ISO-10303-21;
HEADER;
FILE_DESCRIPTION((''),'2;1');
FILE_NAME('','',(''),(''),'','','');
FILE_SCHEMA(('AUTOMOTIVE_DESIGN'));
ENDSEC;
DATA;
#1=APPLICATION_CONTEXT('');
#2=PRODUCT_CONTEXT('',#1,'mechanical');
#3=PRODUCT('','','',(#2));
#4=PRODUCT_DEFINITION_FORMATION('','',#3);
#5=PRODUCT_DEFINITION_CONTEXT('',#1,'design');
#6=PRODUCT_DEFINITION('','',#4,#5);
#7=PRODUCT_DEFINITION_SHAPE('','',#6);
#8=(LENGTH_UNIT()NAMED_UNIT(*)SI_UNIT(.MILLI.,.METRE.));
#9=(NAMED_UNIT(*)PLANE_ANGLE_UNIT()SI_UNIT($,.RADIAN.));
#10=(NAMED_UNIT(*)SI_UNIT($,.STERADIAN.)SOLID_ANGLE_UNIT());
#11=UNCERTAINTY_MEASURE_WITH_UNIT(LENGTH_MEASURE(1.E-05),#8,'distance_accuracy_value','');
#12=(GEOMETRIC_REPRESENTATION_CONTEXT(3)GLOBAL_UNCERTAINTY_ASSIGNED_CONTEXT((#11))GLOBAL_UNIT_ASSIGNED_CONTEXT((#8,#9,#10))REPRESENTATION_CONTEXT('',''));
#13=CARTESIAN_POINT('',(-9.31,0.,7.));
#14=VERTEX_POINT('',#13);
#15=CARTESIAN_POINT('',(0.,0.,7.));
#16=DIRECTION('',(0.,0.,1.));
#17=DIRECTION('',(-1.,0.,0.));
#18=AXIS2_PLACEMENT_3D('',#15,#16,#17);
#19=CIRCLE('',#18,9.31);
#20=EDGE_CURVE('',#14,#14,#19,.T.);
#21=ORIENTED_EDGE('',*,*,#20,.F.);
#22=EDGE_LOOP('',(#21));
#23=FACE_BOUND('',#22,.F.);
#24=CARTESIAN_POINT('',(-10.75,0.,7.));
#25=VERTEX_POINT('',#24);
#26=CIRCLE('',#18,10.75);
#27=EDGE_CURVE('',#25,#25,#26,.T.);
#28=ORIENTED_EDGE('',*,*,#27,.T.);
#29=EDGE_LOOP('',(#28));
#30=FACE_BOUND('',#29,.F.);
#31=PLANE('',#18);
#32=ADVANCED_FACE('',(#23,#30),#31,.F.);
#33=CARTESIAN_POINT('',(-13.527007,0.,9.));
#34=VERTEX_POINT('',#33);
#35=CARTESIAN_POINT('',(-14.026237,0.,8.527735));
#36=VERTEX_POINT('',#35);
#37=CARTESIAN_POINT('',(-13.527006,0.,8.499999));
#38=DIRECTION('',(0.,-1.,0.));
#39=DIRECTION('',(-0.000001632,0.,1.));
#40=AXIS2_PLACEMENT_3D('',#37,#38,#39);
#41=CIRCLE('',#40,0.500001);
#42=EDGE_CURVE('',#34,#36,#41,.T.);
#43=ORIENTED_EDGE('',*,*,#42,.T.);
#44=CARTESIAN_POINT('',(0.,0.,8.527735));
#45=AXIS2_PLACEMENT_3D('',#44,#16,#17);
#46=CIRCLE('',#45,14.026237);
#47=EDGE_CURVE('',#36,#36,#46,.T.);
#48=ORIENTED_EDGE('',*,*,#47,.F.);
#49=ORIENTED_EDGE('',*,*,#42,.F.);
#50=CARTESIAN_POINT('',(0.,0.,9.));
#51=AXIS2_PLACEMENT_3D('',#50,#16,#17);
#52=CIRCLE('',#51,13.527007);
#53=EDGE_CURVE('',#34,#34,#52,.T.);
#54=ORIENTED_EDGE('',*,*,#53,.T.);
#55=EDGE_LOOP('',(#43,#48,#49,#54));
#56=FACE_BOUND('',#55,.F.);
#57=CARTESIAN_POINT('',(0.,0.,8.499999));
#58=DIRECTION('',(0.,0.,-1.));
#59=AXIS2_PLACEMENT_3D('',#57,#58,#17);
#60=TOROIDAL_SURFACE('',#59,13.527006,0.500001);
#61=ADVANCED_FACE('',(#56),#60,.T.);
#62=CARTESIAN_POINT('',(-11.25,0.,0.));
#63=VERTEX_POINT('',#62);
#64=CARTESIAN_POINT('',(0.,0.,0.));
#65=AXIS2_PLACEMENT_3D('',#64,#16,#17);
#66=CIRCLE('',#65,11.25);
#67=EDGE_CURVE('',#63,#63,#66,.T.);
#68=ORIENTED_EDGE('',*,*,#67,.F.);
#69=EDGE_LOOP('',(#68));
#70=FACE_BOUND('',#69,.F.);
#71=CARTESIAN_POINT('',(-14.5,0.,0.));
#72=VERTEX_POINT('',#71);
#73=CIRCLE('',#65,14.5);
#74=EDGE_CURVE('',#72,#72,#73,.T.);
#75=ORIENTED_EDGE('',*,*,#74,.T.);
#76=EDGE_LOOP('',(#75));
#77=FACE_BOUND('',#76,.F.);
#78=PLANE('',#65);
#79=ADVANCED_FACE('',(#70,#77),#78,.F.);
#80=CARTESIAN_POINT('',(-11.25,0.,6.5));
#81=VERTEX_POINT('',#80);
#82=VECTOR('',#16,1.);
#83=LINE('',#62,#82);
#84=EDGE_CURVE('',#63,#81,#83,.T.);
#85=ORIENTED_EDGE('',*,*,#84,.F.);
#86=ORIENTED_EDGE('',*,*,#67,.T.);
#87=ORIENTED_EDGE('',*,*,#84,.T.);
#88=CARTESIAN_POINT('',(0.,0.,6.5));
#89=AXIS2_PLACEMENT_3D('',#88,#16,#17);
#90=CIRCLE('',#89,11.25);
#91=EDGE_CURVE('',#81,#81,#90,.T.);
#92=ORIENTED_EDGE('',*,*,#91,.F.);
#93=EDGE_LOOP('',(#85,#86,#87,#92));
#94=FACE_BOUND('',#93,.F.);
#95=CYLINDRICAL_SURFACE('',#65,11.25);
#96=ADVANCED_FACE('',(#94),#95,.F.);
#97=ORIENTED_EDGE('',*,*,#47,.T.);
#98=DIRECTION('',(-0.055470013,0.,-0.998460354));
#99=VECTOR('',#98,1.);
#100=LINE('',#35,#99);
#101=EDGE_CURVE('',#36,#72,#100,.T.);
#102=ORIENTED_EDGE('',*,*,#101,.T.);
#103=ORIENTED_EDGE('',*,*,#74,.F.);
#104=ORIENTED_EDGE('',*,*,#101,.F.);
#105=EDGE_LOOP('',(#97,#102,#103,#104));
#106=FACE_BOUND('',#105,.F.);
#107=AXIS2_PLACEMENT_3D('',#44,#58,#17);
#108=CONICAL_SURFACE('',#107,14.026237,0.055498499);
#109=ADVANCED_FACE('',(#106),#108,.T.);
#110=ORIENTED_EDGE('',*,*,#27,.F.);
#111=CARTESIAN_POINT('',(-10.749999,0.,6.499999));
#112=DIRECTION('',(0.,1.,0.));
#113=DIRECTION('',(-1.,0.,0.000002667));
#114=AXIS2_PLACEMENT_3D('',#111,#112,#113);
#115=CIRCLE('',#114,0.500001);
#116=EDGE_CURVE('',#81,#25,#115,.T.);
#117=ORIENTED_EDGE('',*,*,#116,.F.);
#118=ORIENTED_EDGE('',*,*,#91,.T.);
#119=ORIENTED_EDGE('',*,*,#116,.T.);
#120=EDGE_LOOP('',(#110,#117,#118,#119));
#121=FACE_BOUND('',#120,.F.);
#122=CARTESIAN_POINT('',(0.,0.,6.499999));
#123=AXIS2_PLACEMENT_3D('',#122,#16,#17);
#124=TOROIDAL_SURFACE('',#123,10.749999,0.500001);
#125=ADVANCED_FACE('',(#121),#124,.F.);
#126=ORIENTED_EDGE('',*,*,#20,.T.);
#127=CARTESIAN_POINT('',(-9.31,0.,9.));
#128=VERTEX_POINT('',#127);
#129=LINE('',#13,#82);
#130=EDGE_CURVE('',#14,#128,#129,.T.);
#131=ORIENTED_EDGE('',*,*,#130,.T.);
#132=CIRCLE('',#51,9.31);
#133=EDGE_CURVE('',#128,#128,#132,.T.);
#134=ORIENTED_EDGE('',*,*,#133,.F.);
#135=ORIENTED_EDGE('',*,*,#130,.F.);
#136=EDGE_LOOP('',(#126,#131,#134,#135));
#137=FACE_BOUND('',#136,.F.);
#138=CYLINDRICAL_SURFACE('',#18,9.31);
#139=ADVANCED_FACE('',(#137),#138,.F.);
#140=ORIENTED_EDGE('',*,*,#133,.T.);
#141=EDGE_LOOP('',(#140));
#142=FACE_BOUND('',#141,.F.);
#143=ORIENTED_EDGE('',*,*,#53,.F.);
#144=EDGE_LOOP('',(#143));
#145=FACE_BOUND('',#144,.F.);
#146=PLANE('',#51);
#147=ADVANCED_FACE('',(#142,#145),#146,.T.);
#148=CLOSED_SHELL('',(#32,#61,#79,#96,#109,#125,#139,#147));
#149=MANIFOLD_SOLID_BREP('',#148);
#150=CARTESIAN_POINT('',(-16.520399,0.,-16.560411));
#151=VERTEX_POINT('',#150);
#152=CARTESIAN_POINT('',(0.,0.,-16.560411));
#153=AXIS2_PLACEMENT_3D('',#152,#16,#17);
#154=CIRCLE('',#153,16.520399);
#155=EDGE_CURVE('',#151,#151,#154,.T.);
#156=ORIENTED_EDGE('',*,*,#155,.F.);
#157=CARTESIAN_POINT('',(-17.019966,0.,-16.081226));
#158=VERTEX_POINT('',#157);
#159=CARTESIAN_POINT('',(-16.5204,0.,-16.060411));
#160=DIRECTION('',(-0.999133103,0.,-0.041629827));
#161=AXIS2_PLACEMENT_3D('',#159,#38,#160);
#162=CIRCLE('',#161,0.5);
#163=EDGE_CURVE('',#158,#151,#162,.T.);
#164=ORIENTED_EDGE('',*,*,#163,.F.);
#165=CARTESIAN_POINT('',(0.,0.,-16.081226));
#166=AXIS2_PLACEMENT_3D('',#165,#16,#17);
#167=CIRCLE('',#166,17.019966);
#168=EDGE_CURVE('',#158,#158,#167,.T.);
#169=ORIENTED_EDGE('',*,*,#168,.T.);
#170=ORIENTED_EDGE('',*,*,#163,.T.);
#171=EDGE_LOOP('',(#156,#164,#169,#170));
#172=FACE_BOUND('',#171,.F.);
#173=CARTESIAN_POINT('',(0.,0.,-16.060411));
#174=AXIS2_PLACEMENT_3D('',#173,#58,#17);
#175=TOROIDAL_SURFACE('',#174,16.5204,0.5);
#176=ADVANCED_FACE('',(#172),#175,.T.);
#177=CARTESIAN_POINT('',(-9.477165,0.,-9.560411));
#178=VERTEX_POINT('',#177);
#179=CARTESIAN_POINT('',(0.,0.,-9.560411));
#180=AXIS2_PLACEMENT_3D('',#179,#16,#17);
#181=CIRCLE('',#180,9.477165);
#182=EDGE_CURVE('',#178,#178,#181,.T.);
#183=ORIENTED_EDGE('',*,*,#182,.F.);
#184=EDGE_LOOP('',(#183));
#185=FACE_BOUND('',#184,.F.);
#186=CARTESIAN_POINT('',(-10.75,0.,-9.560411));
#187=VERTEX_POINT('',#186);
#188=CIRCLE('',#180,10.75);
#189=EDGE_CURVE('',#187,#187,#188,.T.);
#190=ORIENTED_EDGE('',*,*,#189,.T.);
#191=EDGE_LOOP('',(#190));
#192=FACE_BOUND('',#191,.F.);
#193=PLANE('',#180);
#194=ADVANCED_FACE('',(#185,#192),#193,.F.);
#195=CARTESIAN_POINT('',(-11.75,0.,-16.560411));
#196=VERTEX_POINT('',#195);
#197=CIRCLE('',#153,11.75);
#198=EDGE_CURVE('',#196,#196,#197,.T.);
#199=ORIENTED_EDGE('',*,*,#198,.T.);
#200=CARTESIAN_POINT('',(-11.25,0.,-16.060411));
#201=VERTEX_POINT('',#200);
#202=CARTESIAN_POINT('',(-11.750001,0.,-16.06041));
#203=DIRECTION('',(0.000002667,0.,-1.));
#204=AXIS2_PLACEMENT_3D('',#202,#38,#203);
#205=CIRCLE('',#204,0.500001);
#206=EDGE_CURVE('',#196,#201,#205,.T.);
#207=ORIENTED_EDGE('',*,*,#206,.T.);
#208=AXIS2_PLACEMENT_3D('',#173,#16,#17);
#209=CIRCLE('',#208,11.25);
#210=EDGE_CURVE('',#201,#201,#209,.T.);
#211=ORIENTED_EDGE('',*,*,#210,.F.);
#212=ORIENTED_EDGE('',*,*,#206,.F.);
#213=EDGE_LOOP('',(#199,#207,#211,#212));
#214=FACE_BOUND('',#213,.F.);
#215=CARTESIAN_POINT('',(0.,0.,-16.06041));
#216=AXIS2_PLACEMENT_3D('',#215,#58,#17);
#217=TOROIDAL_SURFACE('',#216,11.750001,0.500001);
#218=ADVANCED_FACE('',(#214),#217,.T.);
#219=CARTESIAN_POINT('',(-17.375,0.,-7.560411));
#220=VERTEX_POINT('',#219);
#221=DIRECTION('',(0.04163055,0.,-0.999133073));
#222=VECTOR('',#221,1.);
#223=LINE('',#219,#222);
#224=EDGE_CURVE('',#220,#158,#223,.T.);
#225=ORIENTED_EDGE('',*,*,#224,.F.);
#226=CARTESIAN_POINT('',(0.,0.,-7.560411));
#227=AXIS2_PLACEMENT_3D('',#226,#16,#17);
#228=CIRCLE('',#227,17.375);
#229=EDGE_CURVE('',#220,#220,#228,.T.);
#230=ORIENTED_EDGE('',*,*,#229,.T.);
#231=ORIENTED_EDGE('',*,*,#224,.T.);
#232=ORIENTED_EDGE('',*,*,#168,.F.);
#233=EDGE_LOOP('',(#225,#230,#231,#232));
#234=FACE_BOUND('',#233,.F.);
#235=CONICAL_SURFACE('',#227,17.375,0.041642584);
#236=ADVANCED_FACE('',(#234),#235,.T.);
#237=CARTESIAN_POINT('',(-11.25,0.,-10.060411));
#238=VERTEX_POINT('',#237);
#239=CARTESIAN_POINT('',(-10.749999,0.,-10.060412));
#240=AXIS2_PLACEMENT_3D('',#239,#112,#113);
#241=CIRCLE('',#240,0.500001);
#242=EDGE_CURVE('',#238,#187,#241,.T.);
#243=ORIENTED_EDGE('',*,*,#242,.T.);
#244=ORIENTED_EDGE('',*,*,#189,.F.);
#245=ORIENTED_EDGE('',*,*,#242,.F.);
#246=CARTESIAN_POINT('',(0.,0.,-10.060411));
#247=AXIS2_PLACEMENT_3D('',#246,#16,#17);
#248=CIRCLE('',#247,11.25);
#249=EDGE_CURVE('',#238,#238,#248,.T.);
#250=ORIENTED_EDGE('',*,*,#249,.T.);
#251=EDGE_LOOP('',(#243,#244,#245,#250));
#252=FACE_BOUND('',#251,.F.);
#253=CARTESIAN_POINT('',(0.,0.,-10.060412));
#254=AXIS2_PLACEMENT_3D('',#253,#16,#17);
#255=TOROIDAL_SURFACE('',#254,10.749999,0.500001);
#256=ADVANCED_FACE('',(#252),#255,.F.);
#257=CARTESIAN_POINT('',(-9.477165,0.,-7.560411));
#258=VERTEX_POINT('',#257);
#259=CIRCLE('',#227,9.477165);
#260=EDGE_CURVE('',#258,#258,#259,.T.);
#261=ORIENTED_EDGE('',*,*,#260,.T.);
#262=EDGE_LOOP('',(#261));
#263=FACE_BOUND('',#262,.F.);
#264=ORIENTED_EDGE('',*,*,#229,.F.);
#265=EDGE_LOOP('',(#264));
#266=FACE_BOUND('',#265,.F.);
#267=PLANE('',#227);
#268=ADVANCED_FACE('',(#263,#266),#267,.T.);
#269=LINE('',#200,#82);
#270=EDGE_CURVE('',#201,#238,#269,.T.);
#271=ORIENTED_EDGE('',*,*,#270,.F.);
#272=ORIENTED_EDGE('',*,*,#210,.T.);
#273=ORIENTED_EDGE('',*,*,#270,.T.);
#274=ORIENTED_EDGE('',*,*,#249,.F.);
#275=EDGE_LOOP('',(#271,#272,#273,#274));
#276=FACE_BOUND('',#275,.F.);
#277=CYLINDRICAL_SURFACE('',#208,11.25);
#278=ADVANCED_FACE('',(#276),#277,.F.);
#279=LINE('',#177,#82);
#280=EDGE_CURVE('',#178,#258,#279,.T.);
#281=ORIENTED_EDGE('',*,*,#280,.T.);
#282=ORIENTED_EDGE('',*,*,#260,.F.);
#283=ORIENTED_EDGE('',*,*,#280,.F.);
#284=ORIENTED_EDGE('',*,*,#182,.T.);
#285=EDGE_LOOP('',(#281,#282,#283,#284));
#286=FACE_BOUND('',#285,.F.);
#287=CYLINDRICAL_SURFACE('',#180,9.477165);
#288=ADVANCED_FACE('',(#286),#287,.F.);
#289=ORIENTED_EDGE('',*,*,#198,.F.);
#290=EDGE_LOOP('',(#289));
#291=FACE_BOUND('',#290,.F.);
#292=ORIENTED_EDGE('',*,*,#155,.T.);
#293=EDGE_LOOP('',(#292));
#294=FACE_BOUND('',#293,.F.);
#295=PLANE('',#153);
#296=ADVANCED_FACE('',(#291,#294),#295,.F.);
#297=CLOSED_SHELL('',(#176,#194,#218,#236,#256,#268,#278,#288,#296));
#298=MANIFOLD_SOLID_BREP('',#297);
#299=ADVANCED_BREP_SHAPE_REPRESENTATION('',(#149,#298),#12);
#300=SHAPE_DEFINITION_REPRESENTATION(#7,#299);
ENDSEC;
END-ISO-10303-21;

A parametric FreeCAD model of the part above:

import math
import FreeCAD as App
import Part
import Sketcher
from FreeCAD import Vector

doc = App.newDocument("Part")
params = doc.addObject("Spreadsheet::Sheet", "Params")
for row, (alias, value) in enumerate([
    ("sketch1_radius", "0.500001 mm"),
    ("sketch1_height", "2 mm"),
    ("sketch1_height2", "6 mm"),
    ("sketch1_height3", "6.5 mm"),
    ("sketch1_width", "3.25 mm"),
    ("revolution_angle", "360 deg"),
], start=1):
    params.set(f"A{row}", alias)
    params.set(f"B{row}", "=" + value)
    params.setAlias(f"B{row}", alias)

body = doc.addObject("PartDesign::Body", "Body")
body.AllowCompound = True

# Sketch on XZ plane
sketch1 = body.newObject("Sketcher::SketchObject", "Sketch")
sketch1.AttachmentSupport = (doc.getObject("XZ_Plane"), [""])
sketch1.MapMode = "FlatFace"
sketch1.addGeometry([
    Part.LineSegment(Vector(-14.5, 0, 0), Vector(-11.25, 0, 0)),  # 0
    Part.LineSegment(Vector(-11.25, 0, 0), Vector(-11.25, 6.5, 0)),  # 1
    Part.ArcOfCircle(Part.Circle(Vector(-10.749999, 6.499999, 0), Vector(0, 0, 1), 0.500001), math.radians(90.000153), math.radians(179.999847)),  # 2
    Part.LineSegment(Vector(-10.75, 7, 0), Vector(-9.31, 7, 0)),  # 3
    Part.LineSegment(Vector(-9.31, 7, 0), Vector(-9.31, 9, 0)),  # 4
    Part.LineSegment(Vector(-9.31, 9, 0), Vector(-13.527007, 9, 0)),  # 5
    Part.ArcOfCircle(Part.Circle(Vector(-13.527006, 8.499999, 0), Vector(0, 0, 1), 0.500001), math.radians(90.000094), math.radians(176.820098)),  # 6
    Part.LineSegment(Vector(-14.026237, 8.527735, 0), Vector(-14.5, 0, 0)),  # 7
    Part.LineSegment(Vector(-11.25, -16.060411, 0), Vector(-11.25, -10.060411, 0)),  # 8
    Part.ArcOfCircle(Part.Circle(Vector(-10.749999, -10.060412, 0), Vector(0, 0, 1), 0.500001), math.radians(90.000153), math.radians(179.999847)),  # 9
    Part.LineSegment(Vector(-10.75, -9.560411, 0), Vector(-9.477165, -9.560411, 0)),  # 10
    Part.LineSegment(Vector(-9.477165, -9.560411, 0), Vector(-9.477165, -7.560411, 0)),  # 11
    Part.LineSegment(Vector(-9.477165, -7.560411, 0), Vector(-17.375, -7.560411, 0)),  # 12
    Part.LineSegment(Vector(-17.375, -7.560411, 0), Vector(-17.019966, -16.081226, 0)),  # 13
    Part.ArcOfCircle(Part.Circle(Vector(-16.5204, -16.060411, 0), Vector(0, 0, 1), 0.5), math.radians(-177.614097), math.radians(-89.999938)),  # 14
    Part.LineSegment(Vector(-16.520399, -16.560411, 0), Vector(-11.75, -16.560411, 0)),  # 15
    Part.ArcOfCircle(Part.Circle(Vector(-11.750001, -16.06041, 0), Vector(0, 0, 1), 0.500001), math.radians(-89.999847), math.radians(-0.000153)),  # 16
], False)
sketch1.addConstraint([
    Sketcher.Constraint("Coincident", 0, 2, 1, 1),
    Sketcher.Constraint("Coincident", 1, 2, 2, 2),
    Sketcher.Constraint("Coincident", 2, 1, 3, 1),
    Sketcher.Constraint("Coincident", 3, 2, 4, 1),
    Sketcher.Constraint("Coincident", 4, 2, 5, 1),
    Sketcher.Constraint("Tangent", 5, 2, 6, 1),
    Sketcher.Constraint("Tangent", 6, 2, 7, 1),
    Sketcher.Constraint("Coincident", 7, 2, 0, 1),
    Sketcher.Constraint("Coincident", 8, 2, 9, 2),
    Sketcher.Constraint("Coincident", 9, 1, 10, 1),
    Sketcher.Constraint("Coincident", 10, 2, 11, 1),
    Sketcher.Constraint("Coincident", 11, 2, 12, 1),
    Sketcher.Constraint("Coincident", 12, 2, 13, 1),
    Sketcher.Constraint("Tangent", 13, 2, 14, 1),
    Sketcher.Constraint("Tangent", 14, 2, 15, 1),
    Sketcher.Constraint("Coincident", 15, 2, 16, 1),
    Sketcher.Constraint("Coincident", 16, 2, 8, 1),
    Sketcher.Constraint("Horizontal", 0),
    Sketcher.Constraint("Vertical", 1),
    Sketcher.Constraint("Horizontal", 3),
    Sketcher.Constraint("Vertical", 4),
    Sketcher.Constraint("Horizontal", 5),
    Sketcher.Constraint("Vertical", 8),
    Sketcher.Constraint("Horizontal", 10),
    Sketcher.Constraint("Vertical", 11),
    Sketcher.Constraint("Horizontal", 12),
    Sketcher.Constraint("Horizontal", 15),
    Sketcher.Constraint("Equal", 2, 6),
    Sketcher.Constraint("Equal", 6, 9),
    Sketcher.Constraint("Equal", 9, 14),
    Sketcher.Constraint("Equal", 14, 16),
    Sketcher.Constraint("PointOnObject", 0, 2, -1),
    Sketcher.Constraint("Horizontal", 2, 3, 1, 2),
    Sketcher.Constraint("Horizontal", 9, 3, 8, 2),
    Sketcher.Constraint("Horizontal", 14, 3, 16, 2),
    Sketcher.Constraint("Vertical", 2, 3, 9, 3),
    Sketcher.Constraint("Vertical", 9, 3, 2, 1),
    Sketcher.Constraint("Vertical", 2, 1, 9, 1),
    Sketcher.Constraint("Vertical", 16, 3, 15, 2),
    Sketcher.Constraint("Equal", 4, 11),
    Sketcher.Constraint("Radius", 2, 0.500001),
    Sketcher.Constraint("DistanceY", 4, 1, 4, 2, 2.0),
    Sketcher.Constraint("DistanceY", 8, 1, 8, 2, 6.0),
    Sketcher.Constraint("DistanceY", 1, 1, 1, 2, 6.5),
    Sketcher.Constraint("DistanceX", 0, 1, 0, 2, 3.25),
    Sketcher.Constraint("DistanceX", 3, 1, 3, 2, 1.44),
    Sketcher.Constraint("DistanceX", 7, 2, -1, 1, 14.5),
    Sketcher.Constraint("DistanceX", 15, 1, 15, 2, 4.770399),
    Sketcher.Constraint("DistanceX", 12, 2, -1, 1, 17.375),
    Sketcher.Constraint("DistanceX", 5, 2, 5, 1, 4.217007),
    Sketcher.Constraint("DistanceX", 10, 1, 10, 2, 1.272835),
    Sketcher.Constraint("DistanceY", 14, 3, -1, 1, 16.060411),
])
sketch1.setExpression("Constraints[40]", "Params.sketch1_radius")
sketch1.setExpression("Constraints[41]", "Params.sketch1_height")
sketch1.setExpression("Constraints[42]", "Params.sketch1_height2")
sketch1.setExpression("Constraints[43]", "Params.sketch1_height3")
sketch1.setExpression("Constraints[44]", "Params.sketch1_width")
revolution = body.newObject("PartDesign::Revolution", "Revolution")
revolution.Profile = sketch1
revolution.ReferenceAxis = (sketch1, ["V_Axis"])
revolution.setExpression("Angle", "Params.revolution_angle")

doc.recompute()
